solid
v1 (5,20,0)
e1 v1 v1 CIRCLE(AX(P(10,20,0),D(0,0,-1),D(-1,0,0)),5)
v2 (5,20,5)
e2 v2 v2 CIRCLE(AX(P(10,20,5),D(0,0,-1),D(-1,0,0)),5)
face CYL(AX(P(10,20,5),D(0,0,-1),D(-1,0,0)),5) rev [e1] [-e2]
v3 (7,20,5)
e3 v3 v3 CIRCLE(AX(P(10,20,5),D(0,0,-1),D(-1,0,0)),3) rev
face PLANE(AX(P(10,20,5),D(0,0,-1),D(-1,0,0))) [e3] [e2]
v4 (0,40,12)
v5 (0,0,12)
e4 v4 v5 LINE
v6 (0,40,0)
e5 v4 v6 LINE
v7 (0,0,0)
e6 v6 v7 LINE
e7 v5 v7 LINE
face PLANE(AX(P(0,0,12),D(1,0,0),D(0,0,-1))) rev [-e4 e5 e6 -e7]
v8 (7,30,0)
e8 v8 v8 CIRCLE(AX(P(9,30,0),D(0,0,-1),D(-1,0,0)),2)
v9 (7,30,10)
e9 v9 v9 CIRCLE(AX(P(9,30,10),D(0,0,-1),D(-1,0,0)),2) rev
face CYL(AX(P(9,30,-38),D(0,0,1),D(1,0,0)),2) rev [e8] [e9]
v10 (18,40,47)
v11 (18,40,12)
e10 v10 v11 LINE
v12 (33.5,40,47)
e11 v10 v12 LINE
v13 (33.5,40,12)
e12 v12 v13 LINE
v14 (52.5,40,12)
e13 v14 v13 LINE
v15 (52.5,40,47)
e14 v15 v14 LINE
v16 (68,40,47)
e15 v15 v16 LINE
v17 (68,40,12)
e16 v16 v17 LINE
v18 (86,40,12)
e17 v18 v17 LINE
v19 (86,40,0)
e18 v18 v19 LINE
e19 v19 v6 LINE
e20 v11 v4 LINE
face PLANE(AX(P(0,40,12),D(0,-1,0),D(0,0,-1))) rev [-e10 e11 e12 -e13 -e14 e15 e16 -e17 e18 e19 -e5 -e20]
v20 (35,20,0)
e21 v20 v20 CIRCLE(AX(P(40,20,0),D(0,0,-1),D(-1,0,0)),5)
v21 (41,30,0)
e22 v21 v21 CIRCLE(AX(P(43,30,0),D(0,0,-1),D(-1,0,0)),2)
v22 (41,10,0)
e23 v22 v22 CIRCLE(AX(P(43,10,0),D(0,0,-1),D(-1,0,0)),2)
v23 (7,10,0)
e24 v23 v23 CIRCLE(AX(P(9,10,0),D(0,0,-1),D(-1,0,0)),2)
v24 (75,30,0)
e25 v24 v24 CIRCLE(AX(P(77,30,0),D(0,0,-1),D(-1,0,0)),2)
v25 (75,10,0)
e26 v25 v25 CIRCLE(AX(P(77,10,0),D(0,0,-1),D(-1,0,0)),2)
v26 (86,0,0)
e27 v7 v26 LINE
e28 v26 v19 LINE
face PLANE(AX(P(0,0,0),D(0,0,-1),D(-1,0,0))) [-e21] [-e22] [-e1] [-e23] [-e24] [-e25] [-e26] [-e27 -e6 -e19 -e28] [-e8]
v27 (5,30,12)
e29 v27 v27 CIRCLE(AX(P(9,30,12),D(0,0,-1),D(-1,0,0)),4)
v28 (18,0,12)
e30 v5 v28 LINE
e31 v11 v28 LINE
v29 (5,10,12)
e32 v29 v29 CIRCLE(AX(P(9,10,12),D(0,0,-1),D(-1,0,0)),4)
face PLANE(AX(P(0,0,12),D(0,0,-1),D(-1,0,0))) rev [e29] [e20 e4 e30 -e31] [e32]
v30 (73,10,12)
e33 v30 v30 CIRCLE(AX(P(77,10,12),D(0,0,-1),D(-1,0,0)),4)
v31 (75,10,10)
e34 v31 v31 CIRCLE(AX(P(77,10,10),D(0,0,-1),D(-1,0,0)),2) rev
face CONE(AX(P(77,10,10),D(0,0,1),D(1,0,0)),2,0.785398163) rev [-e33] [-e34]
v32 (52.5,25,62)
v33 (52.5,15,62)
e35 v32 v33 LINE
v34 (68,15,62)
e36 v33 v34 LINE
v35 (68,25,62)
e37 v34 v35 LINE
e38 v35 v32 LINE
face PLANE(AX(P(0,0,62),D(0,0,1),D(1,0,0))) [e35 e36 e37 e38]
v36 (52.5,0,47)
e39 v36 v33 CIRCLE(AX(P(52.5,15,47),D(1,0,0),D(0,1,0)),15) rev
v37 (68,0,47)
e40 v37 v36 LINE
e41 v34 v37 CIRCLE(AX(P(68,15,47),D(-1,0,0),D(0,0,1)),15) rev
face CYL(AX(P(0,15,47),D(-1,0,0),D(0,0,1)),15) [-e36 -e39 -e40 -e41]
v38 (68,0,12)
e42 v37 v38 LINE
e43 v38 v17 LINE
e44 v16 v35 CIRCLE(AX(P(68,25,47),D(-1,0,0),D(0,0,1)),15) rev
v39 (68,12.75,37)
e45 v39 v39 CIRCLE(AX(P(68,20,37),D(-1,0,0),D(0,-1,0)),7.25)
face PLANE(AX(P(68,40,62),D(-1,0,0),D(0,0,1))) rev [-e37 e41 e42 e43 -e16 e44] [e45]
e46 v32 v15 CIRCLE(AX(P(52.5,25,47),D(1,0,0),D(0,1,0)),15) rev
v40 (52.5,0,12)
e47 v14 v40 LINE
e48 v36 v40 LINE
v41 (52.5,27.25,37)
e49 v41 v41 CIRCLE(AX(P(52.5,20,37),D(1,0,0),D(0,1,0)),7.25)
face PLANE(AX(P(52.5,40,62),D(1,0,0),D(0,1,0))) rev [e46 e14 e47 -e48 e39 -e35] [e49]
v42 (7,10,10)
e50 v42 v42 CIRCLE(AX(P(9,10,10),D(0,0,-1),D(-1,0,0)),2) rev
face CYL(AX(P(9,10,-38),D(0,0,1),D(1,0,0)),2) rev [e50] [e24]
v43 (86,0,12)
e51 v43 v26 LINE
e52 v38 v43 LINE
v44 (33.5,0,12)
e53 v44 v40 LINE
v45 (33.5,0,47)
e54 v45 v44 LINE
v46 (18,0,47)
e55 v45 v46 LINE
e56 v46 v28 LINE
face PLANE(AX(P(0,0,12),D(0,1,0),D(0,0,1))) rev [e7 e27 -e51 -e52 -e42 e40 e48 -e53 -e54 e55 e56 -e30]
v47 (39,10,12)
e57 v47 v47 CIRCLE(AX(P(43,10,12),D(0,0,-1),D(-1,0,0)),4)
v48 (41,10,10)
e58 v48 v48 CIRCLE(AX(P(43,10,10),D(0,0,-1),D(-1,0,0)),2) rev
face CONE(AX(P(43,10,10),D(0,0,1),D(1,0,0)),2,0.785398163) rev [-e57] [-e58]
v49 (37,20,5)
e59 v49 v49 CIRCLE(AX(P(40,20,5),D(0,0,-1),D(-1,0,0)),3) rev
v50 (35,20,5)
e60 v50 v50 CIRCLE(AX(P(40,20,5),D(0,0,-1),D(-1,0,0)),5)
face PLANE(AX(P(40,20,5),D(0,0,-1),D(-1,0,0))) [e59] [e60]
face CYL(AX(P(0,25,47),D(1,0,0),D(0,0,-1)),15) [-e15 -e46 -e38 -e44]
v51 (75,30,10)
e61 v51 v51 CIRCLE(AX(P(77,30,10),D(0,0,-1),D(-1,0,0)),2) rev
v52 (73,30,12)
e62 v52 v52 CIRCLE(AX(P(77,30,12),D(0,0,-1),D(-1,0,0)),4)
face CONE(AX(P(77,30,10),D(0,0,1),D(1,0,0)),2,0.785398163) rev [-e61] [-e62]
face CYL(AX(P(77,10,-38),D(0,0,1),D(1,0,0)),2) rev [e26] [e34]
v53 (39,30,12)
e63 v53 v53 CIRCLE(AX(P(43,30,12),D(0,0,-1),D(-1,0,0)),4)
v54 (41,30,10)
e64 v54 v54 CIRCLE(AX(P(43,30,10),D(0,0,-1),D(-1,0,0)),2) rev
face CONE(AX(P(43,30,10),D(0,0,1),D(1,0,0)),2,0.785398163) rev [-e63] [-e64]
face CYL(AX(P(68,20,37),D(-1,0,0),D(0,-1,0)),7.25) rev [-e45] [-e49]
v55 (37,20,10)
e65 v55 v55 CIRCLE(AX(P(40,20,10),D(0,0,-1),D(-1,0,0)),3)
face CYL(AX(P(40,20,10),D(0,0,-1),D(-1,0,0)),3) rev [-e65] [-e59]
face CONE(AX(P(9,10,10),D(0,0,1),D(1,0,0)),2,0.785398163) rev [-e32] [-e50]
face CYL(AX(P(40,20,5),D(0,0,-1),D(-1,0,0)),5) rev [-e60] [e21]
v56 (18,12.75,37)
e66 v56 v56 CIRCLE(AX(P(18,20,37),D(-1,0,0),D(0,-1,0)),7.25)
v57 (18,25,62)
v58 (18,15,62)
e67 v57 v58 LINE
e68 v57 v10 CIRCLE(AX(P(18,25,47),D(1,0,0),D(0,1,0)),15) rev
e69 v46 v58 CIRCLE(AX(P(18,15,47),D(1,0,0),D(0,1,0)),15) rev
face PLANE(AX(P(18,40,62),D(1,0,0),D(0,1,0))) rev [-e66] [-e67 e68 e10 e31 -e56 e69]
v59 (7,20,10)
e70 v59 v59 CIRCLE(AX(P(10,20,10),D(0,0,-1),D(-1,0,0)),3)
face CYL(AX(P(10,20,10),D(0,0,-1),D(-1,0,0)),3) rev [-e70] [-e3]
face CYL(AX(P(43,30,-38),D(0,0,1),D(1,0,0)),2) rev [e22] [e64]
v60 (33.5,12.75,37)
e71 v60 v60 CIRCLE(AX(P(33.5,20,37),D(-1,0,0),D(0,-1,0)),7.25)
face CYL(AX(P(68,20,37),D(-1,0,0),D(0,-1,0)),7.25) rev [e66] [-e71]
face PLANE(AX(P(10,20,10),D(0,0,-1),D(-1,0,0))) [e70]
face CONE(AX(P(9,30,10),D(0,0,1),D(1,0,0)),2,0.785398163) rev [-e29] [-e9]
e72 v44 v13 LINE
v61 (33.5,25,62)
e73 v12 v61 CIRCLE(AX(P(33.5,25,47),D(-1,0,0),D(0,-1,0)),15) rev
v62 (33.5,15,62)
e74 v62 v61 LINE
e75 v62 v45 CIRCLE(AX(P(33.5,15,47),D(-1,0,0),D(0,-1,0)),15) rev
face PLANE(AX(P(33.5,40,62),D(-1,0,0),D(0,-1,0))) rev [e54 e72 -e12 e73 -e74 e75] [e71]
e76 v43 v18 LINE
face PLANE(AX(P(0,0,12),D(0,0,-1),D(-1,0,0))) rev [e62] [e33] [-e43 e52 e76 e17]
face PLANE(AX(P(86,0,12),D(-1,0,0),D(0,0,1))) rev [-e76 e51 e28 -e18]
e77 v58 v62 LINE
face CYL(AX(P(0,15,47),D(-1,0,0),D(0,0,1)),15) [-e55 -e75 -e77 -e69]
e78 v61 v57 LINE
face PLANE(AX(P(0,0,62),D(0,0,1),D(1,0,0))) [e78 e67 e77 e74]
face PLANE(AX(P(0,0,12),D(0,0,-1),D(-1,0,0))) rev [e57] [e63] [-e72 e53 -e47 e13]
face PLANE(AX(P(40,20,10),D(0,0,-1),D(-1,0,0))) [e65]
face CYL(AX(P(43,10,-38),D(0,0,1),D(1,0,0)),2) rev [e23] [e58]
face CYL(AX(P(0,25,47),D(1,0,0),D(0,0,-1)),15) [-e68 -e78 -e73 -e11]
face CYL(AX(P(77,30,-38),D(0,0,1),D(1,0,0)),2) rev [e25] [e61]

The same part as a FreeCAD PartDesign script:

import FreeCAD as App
import Part
import Sketcher
from FreeCAD import Vector


def edges_at(feature, points):
    """Names of the edges that pass closest to the given points."""
    edges = feature.Shape.Edges
    near = lambda p: min(range(len(edges)), key=lambda i: edges[i].distToShape(Part.Vertex(*p))[0])
    return sorted({f"Edge{near(p) + 1}" for p in points})

doc = App.newDocument("Part")
body = doc.addObject("PartDesign::Body", "Body")

# Sketch on XY plane
sketch1 = doc.addObject("Sketcher::SketchObject", "Sketch")
body.addObject(sketch1)
sketch1.AttachmentSupport = (doc.XY_Plane, [""])
sketch1.MapMode = "FlatFace"
sketch1.addGeometry([
    Part.LineSegment(Vector(0, 40, 0), Vector(0, 0, 0)),
    Part.LineSegment(Vector(0, 0, 0), Vector(86, 0, 0)),
    Part.LineSegment(Vector(86, 0, 0), Vector(86, 40, 0)),
    Part.LineSegment(Vector(86, 40, 0), Vector(0, 40, 0)),
], False)
sketch1.addConstraint([
    Sketcher.Constraint("Coincident", 0, 2, 1, 1),
    Sketcher.Constraint("Coincident", 1, 2, 2, 1),
    Sketcher.Constraint("Coincident", 2, 2, 3, 1),
    Sketcher.Constraint("Coincident", 3, 2, 0, 1),
    Sketcher.Constraint("Vertical", 0),
    Sketcher.Constraint("Horizontal", 1),
    Sketcher.Constraint("Vertical", 2),
    Sketcher.Constraint("Horizontal", 3),
    Sketcher.Constraint("Coincident", 0, 2, -1, 1),
    Sketcher.Constraint("DistanceX", 1, 1, 1, 2, 86.0),
    Sketcher.Constraint("DistanceY", 0, 2, 0, 1, 40.0),
])
pad1 = doc.addObject("PartDesign::Pad", "Pad")
body.addObject(pad1)
pad1.Profile = sketch1
pad1.Length = 12

# Sketch on XY plane
sketch2 = doc.addObject("Sketcher::SketchObject", "Sketch001")
body.addObject(sketch2)
sketch2.AttachmentSupport = (doc.XY_Plane, [""])
sketch2.MapMode = "FlatFace"
sketch2.AttachmentOffset = App.Placement(Vector(0, 0, 12), App.Rotation())
sketch2.addGeometry([
    Part.LineSegment(Vector(18, 40, 0), Vector(18, 0, 0)),  # 0
    Part.LineSegment(Vector(18, 0, 0), Vector(34, 0, 0)),  # 1
    Part.LineSegment(Vector(34, 0, 0), Vector(34, 40, 0)),  # 2
    Part.LineSegment(Vector(34, 40, 0), Vector(18, 40, 0)),  # 3
    Part.LineSegment(Vector(52, 40, 0), Vector(52, 0, 0)),  # 4
    Part.LineSegment(Vector(52, 0, 0), Vector(68, 0, 0)),  # 5
    Part.LineSegment(Vector(68, 0, 0), Vector(68, 40, 0)),  # 6
    Part.LineSegment(Vector(68, 40, 0), Vector(52, 40, 0)),  # 7
], False)
sketch2.addConstraint([
    Sketcher.Constraint("Coincident", 0, 2, 1, 1),
    Sketcher.Constraint("Coincident", 1, 2, 2, 1),
    Sketcher.Constraint("Coincident", 2, 2, 3, 1),
    Sketcher.Constraint("Coincident", 3, 2, 0, 1),
    Sketcher.Constraint("Coincident", 4, 2, 5, 1),
    Sketcher.Constraint("Coincident", 5, 2, 6, 1),
    Sketcher.Constraint("Coincident", 6, 2, 7, 1),
    Sketcher.Constraint("Coincident", 7, 2, 4, 1),
    Sketcher.Constraint("Vertical", 0),
    Sketcher.Constraint("Horizontal", 1),
    Sketcher.Constraint("Vertical", 2),
    Sketcher.Constraint("Horizontal", 3),
    Sketcher.Constraint("Vertical", 4),
    Sketcher.Constraint("Horizontal", 5),
    Sketcher.Constraint("Vertical", 6),
    Sketcher.Constraint("Horizontal", 7),
    Sketcher.Constraint("PointOnObject", 0, 2, -1),
    Sketcher.Constraint("PointOnObject", 4, 2, -1),
    Sketcher.Constraint("Horizontal", 3, 2, 6, 2),
    Sketcher.Constraint("Equal", 3, 5),
    Sketcher.Constraint("DistanceY", 0, 2, 0, 1, 40.0),
    Sketcher.Constraint("DistanceX", 1, 1, 1, 2, 15.5),
    Sketcher.Constraint("DistanceX", -1, 1, 0, 2, 18.0),
    Sketcher.Constraint("DistanceX", -1, 1, 5, 2, 68.0),
])
pad2 = doc.addObject("PartDesign::Pad", "Pad001")
body.addObject(pad2)
pad2.Profile = sketch2
pad2.Length = 50

# Sketch on YZ plane
sketch3 = doc.addObject("Sketcher::SketchObject", "Sketch002")
body.addObject(sketch3)
sketch3.AttachmentSupport = (doc.YZ_Plane, [""])
sketch3.MapMode = "FlatFace"
sketch3.AttachmentOffset = App.Placement(Vector(0, 0, 18), App.Rotation())
sketch3.addGeometry(Part.Circle(Vector(20, 37, 0), Vector(0, 0, 1), 7), False)
sketch3.addConstraint([
    Sketcher.Constraint("Diameter", 0, 14.5),
    Sketcher.Constraint("DistanceX", -1, 1, 0, 3, 20.0),
    Sketcher.Constraint("DistanceY", -1, 1, 0, 3, 37.0),
])
pocket1 = doc.addObject("PartDesign::Pocket", "Pocket")
body.addObject(pocket1)
pocket1.Profile = sketch3
pocket1.Length = 50
pocket1.Reversed = True
doc.recompute()

fillet = doc.addObject("PartDesign::Fillet", "Fillet")
body.addObject(fillet)
fillet.Base = (pocket1, edges_at(pocket1, [
    (25.75, 0, 62),
    (25.75, 40, 62),
    (60.25, 0, 62),
    (60.25, 40, 62),
]))
fillet.Radius = 15

# Sketch on XY plane
sketch4 = doc.addObject("Sketcher::SketchObject", "Sketch003")
body.addObject(sketch4)
sketch4.AttachmentSupport = (doc.XY_Plane, [""])
sketch4.MapMode = "FlatFace"
sketch4.AttachmentOffset = App.Placement(Vector(0, 0, 12), App.Rotation())
sketch4.addGeometry([
    Part.Circle(Vector(9, 30, 0), Vector(0, 0, 1), 2),  # 0
    Part.Circle(Vector(9, 10, 0), Vector(0, 0, 1), 2),  # 1
    Part.Circle(Vector(43, 30, 0), Vector(0, 0, 1), 2),  # 2
    Part.Circle(Vector(43, 10, 0), Vector(0, 0, 1), 2),  # 3
    Part.Circle(Vector(77, 30, 0), Vector(0, 0, 1), 2),  # 4
    Part.Circle(Vector(77, 10, 0), Vector(0, 0, 1), 2),  # 5
], False)
sketch4.addConstraint([
    Sketcher.Constraint("Equal", 0, 1),
    Sketcher.Constraint("Equal", 1, 2),
    Sketcher.Constraint("Equal", 2, 3),
    Sketcher.Constraint("Equal", 3, 4),
    Sketcher.Constraint("Equal", 4, 5),
    Sketcher.Constraint("Horizontal", 0, 3, 2, 3),
    Sketcher.Constraint("Horizontal", 1, 3, 3, 3),
    Sketcher.Constraint("Horizontal", 2, 3, 4, 3),
    Sketcher.Constraint("Horizontal", 3, 3, 5, 3),
    Sketcher.Constraint("Vertical", 0, 3, 1, 3),
    Sketcher.Constraint("Vertical", 2, 3, 3, 3),
    Sketcher.Constraint("Vertical", 4, 3, 5, 3),
    Sketcher.Constraint("Diameter", 0, 4.0),
    Sketcher.Constraint("DistanceX", -1, 1, 0, 3, 9.0),
    Sketcher.Constraint("DistanceY", -1, 1, 0, 3, 30.0),
    Sketcher.Constraint("DistanceY", -1, 1, 1, 3, 10.0),
    Sketcher.Constraint("DistanceX", -1, 1, 2, 3, 43.0),
    Sketcher.Constraint("DistanceX", -1, 1, 4, 3, 77.0),
])
pocket2 = doc.addObject("PartDesign::Pocket", "Pocket001")
body.addObject(pocket2)
pocket2.Profile = sketch4
pocket2.Length = 50
doc.recompute()

chamfer = doc.addObject("PartDesign::Chamfer", "Chamfer")
body.addObject(chamfer)
chamfer.Base = (pocket2, edges_at(pocket2, [
    (7, 30, 12),
    (75, 10, 12),
    (75, 30, 12),
    (41, 10, 12),
    (41, 30, 12),
    (7, 10, 12),
]))
chamfer.Size = 2

# Sketch on XY plane
sketch5 = doc.addObject("Sketcher::SketchObject", "Sketch004")
body.addObject(sketch5)
sketch5.AttachmentSupport = (doc.XY_Plane, [""])
sketch5.MapMode = "FlatFace"
sketch5.addGeometry([
    Part.Circle(Vector(10, 20, 0), Vector(0, 0, 1), 3),
    Part.Circle(Vector(40, 20, 0), Vector(0, 0, 1), 3),
], False)
sketch5.addConstraint([
    Sketcher.Constraint("Equal", 0, 1),
    Sketcher.Constraint("Horizontal", 0, 3, 1, 3),
    Sketcher.Constraint("Diameter", 0, 6.0),
    Sketcher.Constraint("DistanceX", -1, 1, 0, 3, 10.0),
    Sketcher.Constraint("DistanceY", -1, 1, 0, 3, 20.0),
    Sketcher.Constraint("DistanceX", -1, 1, 1, 3, 40.0),
])
pocket3 = doc.addObject("PartDesign::Pocket", "Pocket002")
body.addObject(pocket3)
pocket3.Profile = sketch5
pocket3.Length = 10
pocket3.Reversed = True

# Sketch on XY plane
sketch6 = doc.addObject("Sketcher::SketchObject", "Sketch005")
body.addObject(sketch6)
sketch6.AttachmentSupport = (doc.XY_Plane, [""])
sketch6.MapMode = "FlatFace"
sketch6.addGeometry([
    Part.Circle(Vector(10, 20, 0), Vector(0, 0, 1), 5),
    Part.Circle(Vector(40, 20, 0), Vector(0, 0, 1), 5),
], False)
sketch6.addConstraint([
    Sketcher.Constraint("Equal", 0, 1),
    Sketcher.Constraint("Horizontal", 0, 3, 1, 3),
    Sketcher.Constraint("Diameter", 0, 10.0),
    Sketcher.Constraint("DistanceX", -1, 1, 0, 3, 10.0),
    Sketcher.Constraint("DistanceY", -1, 1, 0, 3, 20.0),
    Sketcher.Constraint("DistanceX", -1, 1, 1, 3, 40.0),
])
pocket4 = doc.addObject("PartDesign::Pocket", "Pocket003")
body.addObject(pocket4)
pocket4.Profile = sketch6
pocket4.Length = 5
pocket4.Reversed = True

doc.recompute()
